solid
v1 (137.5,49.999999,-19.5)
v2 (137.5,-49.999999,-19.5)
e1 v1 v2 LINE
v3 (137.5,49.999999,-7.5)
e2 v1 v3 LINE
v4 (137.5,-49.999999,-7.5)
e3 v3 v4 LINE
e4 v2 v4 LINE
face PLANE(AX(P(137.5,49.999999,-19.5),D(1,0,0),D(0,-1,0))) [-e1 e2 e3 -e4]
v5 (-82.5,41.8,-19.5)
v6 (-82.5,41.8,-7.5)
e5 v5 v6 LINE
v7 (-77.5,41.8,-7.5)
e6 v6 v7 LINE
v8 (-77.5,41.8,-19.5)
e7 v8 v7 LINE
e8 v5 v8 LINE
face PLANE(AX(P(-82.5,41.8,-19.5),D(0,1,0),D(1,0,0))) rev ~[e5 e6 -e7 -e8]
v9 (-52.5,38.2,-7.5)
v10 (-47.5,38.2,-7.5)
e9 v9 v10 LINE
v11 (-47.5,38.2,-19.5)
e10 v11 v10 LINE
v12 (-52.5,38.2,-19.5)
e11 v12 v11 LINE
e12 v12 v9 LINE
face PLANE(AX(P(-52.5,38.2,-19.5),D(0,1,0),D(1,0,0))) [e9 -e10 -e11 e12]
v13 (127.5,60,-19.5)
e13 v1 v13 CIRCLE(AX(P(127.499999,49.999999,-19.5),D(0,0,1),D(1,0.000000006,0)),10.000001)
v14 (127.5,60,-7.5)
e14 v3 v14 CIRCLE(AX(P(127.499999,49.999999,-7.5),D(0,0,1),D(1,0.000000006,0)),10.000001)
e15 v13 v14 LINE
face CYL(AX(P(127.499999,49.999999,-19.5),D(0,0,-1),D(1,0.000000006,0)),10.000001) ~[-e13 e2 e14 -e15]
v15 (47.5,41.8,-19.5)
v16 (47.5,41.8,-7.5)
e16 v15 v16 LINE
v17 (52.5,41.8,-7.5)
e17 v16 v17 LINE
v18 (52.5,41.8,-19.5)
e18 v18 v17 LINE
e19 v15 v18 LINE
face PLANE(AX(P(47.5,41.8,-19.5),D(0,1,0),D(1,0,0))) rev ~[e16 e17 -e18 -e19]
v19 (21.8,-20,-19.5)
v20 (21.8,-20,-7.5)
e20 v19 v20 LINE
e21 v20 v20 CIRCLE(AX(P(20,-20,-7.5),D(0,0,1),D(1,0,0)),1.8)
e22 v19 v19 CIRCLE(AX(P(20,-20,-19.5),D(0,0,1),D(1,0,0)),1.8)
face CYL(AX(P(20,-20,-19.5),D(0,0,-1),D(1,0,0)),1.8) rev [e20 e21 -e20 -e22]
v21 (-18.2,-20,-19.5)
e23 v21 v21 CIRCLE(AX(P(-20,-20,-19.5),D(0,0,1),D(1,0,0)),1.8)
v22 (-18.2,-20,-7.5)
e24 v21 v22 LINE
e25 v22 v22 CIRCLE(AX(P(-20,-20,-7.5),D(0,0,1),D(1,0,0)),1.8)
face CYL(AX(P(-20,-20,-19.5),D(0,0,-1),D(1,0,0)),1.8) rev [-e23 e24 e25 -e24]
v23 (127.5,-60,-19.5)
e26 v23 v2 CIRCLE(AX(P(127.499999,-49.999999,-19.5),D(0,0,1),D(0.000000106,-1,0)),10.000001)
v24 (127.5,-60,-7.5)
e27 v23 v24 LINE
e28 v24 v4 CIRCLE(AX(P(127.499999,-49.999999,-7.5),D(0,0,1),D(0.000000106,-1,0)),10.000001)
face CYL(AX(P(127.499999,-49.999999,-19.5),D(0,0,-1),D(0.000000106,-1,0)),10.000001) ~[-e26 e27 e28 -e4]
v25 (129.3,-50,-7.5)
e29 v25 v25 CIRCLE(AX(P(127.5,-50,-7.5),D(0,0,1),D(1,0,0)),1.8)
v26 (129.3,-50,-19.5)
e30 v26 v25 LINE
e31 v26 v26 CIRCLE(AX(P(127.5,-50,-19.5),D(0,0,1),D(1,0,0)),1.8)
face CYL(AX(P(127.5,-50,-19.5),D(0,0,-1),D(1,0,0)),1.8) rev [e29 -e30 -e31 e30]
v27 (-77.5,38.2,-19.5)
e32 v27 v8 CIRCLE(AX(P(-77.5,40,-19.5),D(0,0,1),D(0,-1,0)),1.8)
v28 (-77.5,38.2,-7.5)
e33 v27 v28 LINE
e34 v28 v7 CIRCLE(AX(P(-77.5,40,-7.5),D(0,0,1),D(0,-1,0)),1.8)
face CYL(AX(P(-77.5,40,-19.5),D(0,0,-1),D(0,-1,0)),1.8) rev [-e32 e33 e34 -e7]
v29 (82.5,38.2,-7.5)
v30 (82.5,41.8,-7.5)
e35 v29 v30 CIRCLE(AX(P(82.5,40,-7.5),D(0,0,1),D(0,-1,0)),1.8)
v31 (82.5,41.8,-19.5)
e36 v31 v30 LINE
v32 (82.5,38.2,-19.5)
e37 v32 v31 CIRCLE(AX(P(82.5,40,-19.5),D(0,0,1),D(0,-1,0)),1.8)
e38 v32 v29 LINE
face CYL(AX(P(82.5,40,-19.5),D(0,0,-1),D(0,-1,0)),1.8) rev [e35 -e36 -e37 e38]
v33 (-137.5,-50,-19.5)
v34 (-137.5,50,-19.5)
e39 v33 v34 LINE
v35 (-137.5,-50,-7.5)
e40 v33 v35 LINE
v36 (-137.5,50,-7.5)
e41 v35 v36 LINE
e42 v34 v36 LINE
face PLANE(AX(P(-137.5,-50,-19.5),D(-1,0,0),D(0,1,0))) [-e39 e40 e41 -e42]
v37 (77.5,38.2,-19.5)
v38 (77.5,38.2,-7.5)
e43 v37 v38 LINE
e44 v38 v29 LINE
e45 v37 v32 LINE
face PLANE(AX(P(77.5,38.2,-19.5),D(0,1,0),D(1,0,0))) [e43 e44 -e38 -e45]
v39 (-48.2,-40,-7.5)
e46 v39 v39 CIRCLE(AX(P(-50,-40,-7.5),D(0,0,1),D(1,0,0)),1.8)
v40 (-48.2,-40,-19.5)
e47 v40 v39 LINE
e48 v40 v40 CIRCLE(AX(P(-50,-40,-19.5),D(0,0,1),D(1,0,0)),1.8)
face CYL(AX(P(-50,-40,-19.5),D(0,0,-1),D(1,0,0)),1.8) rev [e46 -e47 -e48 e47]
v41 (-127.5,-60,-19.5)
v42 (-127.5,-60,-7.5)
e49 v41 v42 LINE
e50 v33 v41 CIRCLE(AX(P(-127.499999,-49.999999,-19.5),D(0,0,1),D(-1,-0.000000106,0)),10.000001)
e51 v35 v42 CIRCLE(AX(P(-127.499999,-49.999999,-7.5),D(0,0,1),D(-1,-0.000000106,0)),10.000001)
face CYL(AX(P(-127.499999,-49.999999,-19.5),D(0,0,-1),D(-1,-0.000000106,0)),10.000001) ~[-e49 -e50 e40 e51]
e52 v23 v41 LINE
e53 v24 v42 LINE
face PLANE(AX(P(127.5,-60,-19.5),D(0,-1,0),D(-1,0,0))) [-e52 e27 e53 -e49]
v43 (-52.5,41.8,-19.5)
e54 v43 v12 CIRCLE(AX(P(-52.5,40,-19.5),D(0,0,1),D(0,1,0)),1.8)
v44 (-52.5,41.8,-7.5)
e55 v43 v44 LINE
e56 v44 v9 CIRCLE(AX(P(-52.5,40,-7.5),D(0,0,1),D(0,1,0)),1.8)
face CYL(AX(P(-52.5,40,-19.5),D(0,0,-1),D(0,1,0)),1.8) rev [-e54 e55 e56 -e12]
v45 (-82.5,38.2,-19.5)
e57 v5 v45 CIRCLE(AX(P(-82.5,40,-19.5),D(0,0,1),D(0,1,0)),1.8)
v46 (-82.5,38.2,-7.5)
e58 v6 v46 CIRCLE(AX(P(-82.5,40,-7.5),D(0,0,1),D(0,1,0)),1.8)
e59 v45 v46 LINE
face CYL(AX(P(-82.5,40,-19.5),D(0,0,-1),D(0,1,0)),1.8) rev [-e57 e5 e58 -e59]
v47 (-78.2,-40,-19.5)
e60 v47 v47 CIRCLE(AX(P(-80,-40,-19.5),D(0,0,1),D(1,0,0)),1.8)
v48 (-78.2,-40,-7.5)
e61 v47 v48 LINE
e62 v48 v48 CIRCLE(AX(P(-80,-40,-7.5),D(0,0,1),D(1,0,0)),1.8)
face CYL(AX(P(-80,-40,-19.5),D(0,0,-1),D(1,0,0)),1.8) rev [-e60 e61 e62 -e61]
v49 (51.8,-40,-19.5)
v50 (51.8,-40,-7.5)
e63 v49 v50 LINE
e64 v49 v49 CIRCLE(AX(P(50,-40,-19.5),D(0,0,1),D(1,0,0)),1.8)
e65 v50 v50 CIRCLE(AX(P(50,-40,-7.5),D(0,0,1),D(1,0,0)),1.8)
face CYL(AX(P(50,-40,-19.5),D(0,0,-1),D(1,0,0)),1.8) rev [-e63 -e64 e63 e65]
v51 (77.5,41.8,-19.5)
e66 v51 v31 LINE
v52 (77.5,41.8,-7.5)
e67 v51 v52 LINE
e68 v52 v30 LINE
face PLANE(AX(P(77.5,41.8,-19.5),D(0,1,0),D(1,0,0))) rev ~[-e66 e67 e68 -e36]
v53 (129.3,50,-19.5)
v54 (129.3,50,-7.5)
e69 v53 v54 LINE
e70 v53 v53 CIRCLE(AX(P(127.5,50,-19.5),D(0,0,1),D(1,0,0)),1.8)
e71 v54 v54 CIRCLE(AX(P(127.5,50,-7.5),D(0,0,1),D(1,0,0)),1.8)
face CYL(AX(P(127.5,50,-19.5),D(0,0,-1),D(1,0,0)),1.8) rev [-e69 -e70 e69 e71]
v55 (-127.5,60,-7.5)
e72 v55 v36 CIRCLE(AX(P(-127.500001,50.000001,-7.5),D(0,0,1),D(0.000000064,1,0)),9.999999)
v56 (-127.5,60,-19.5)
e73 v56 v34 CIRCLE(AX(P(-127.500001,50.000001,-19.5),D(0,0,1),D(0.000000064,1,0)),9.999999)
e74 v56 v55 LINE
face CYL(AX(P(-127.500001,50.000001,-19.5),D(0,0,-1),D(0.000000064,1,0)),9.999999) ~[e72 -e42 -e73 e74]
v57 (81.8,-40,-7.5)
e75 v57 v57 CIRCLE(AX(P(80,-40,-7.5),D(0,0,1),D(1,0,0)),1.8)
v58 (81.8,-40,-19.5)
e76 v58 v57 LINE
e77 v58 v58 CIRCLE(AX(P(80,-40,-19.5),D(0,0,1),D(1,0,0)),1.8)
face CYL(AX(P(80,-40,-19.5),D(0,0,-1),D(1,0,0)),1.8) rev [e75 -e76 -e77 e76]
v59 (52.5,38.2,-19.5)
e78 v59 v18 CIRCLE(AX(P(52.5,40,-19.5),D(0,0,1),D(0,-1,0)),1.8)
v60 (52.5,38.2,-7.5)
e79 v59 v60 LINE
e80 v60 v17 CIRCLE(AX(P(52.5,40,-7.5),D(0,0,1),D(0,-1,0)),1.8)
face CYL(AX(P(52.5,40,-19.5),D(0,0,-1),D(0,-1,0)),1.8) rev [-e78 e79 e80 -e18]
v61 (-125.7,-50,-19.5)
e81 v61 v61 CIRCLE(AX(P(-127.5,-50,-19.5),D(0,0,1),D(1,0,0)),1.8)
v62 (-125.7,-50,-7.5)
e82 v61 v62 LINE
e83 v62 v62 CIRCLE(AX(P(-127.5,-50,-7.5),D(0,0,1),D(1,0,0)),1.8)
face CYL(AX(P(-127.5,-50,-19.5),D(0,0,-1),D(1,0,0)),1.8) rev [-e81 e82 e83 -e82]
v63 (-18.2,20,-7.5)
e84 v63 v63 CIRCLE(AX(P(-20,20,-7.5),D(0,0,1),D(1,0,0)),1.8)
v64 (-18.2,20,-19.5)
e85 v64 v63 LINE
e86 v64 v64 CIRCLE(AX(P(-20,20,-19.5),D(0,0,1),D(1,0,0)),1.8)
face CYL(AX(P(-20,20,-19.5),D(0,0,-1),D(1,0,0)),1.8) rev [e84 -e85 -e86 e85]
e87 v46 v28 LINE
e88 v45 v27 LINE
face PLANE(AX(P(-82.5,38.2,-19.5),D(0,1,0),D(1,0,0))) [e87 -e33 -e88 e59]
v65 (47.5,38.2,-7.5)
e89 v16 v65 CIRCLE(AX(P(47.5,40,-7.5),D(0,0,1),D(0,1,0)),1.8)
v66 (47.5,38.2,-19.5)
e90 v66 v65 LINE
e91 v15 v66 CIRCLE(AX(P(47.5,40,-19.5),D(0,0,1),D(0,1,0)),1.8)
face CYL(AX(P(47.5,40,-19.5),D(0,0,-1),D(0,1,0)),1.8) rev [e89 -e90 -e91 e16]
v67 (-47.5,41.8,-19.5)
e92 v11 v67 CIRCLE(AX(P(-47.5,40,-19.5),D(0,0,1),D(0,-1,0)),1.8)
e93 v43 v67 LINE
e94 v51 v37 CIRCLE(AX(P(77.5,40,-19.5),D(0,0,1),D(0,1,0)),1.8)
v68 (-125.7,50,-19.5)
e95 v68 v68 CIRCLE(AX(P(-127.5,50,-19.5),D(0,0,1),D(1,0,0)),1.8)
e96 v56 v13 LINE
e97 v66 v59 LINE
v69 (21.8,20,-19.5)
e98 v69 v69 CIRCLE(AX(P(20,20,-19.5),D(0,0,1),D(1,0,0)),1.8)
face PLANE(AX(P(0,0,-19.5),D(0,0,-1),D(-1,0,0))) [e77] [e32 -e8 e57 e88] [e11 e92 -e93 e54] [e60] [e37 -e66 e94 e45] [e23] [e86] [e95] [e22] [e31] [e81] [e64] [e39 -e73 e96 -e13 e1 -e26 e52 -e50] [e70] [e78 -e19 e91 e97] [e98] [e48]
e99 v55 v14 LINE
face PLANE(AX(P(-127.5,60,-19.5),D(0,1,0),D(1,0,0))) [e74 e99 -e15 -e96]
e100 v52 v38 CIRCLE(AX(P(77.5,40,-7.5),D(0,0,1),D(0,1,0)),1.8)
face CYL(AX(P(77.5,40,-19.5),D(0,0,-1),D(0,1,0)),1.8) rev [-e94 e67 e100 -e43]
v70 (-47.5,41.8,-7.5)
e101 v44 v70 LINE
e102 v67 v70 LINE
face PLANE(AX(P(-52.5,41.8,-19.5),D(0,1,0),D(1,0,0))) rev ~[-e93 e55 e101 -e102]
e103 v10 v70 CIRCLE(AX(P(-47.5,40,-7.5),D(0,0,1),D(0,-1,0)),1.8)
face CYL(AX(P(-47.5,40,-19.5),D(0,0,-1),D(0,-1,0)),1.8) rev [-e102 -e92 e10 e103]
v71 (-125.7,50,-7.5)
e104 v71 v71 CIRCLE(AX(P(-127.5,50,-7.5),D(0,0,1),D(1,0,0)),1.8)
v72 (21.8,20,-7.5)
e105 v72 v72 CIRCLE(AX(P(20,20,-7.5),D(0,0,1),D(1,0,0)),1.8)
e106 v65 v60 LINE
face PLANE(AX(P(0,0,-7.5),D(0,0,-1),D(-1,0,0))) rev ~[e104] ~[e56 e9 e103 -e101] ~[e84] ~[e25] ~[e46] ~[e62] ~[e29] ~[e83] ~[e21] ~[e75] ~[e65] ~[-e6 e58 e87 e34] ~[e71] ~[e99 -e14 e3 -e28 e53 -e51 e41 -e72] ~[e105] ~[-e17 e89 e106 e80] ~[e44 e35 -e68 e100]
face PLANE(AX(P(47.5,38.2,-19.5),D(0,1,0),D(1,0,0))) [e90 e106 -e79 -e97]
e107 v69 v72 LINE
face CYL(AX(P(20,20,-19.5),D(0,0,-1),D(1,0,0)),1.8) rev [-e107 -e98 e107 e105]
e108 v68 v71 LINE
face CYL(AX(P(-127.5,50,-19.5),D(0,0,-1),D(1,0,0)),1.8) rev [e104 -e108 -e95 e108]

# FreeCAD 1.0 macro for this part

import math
import FreeCAD as App
import Part
import Sketcher

V = App.Vector
Q = App.Units.Quantity

doc = App.newDocument("Part")
body = doc.addObject("PartDesign::Body", "Body")

# Sketch on XY plane
sketch1 = body.newObject("Sketcher::SketchObject", "Sketch")
sketch1.AttachmentSupport = (doc.getObject("XY_Plane"), [""])
sketch1.MapMode = "FlatFace"
sketch1.AttachmentOffset = App.Placement(V(0, 0, -19.5), App.Rotation())
sketch1.addGeometry([
    Part.LineSegment(V(127.5, 60, 0), V(-127.5, 60, 0)),  # 0
    Part.ArcOfCircle(Part.Circle(V(-127.5, 50, 0), V(0, 0, 1), 10), math.radians(90), math.radians(180)),  # 1
    Part.LineSegment(V(-137.5, 50, 0), V(-137.5, -50, 0)),  # 2
    Part.ArcOfCircle(Part.Circle(V(-127.5, -50, 0), V(0, 0, 1), 10), math.radians(-180), math.radians(-90)),  # 3
    Part.LineSegment(V(-127.5, -60, 0), V(127.5, -60, 0)),  # 4
    Part.ArcOfCircle(Part.Circle(V(127.5, -50, 0), V(0, 0, 1), 10), math.radians(-90), math.radians(0)),  # 5
    Part.LineSegment(V(137.5, -50, 0), V(137.5, 50, 0)),  # 6
    Part.ArcOfCircle(Part.Circle(V(127.5, 50, 0), V(0, 0, 1), 10), math.radians(0), math.radians(90)),  # 7
    Part.Circle(V(127.5, -50, 0), V(0, 0, 1), 1.8),  # 8
    Part.Circle(V(80, -40, 0), V(0, 0, 1), 1.8),  # 9
    Part.Circle(V(50, -40, 0), V(0, 0, 1), 1.8),  # 10
    Part.Circle(V(20, -20, 0), V(0, 0, 1), 1.8),  # 11
    Part.Circle(V(-50, -40, 0), V(0, 0, 1), 1.8),  # 12
    Part.Circle(V(-80, -40, 0), V(0, 0, 1), 1.8),  # 13
    Part.Circle(V(-127.5, -50, 0), V(0, 0, 1), 1.8),  # 14
    Part.Circle(V(-20, -20, 0), V(0, 0, 1), 1.8),  # 15
    Part.Circle(V(20, 20, 0), V(0, 0, 1), 1.8),  # 16
    Part.Circle(V(127.5, 50, 0), V(0, 0, 1), 1.8),  # 17
    Part.LineSegment(V(77.5, 41.8, 0), V(82.5, 41.8, 0)),  # 18
    Part.ArcOfCircle(Part.Circle(V(82.5, 40, 0), V(0, 0, 1), 1.8), math.radians(-90), math.radians(90)),  # 19
    Part.LineSegment(V(82.5, 38.2, 0), V(77.5, 38.2, 0)),  # 20
    Part.ArcOfCircle(Part.Circle(V(77.5, 40, 0), V(0, 0, 1), 1.8), math.radians(90), math.radians(270)),  # 21
    Part.LineSegment(V(47.5, 41.8, 0), V(52.5, 41.8, 0)),  # 22
    Part.ArcOfCircle(Part.Circle(V(52.5, 40, 0), V(0, 0, 1), 1.8), math.radians(-90), math.radians(90)),  # 23
    Part.LineSegment(V(52.5, 38.2, 0), V(47.5, 38.2, 0)),  # 24
    Part.ArcOfCircle(Part.Circle(V(47.5, 40, 0), V(0, 0, 1), 1.8), math.radians(90), math.radians(270)),  # 25
    Part.Circle(V(-20, 20, 0), V(0, 0, 1), 1.8),  # 26
    Part.LineSegment(V(-52.5, 41.8, 0), V(-47.5, 41.8, 0)),  # 27
    Part.ArcOfCircle(Part.Circle(V(-47.5, 40, 0), V(0, 0, 1), 1.8), math.radians(-90), math.radians(90)),  # 28
    Part.LineSegment(V(-47.5, 38.2, 0), V(-52.5, 38.2, 0)),  # 29
    Part.ArcOfCircle(Part.Circle(V(-52.5, 40, 0), V(0, 0, 1), 1.8), math.radians(90), math.radians(270)),  # 30
    Part.LineSegment(V(-82.5, 41.8, 0), V(-77.5, 41.8, 0)),  # 31
    Part.ArcOfCircle(Part.Circle(V(-77.5, 40, 0), V(0, 0, 1), 1.8), math.radians(-90), math.radians(90)),  # 32
    Part.LineSegment(V(-77.5, 38.2, 0), V(-82.5, 38.2, 0)),  # 33
    Part.ArcOfCircle(Part.Circle(V(-82.5, 40, 0), V(0, 0, 1), 1.8), math.radians(90), math.radians(270)),  # 34
    Part.Circle(V(-127.5, 50, 0), V(0, 0, 1), 1.8),  # 35
], False)
sketch1.addConstraint([
    Sketcher.Constraint("Tangent", 0, 2, 1, 1),
    Sketcher.Constraint("Tangent", 1, 2, 2, 1),
    Sketcher.Constraint("Tangent", 2, 2, 3, 1),
    Sketcher.Constraint("Tangent", 3, 2, 4, 1),
    Sketcher.Constraint("Tangent", 4, 2, 5, 1),
    Sketcher.Constraint("Tangent", 5, 2, 6, 1),
    Sketcher.Constraint("Tangent", 6, 2, 7, 1),
    Sketcher.Constraint("Tangent", 7, 2, 0, 1),
    Sketcher.Constraint("Tangent", 18, 2, 19, 2),
    Sketcher.Constraint("Tangent", 19, 1, 20, 1),
    Sketcher.Constraint("Tangent", 20, 2, 21, 2),
    Sketcher.Constraint("Tangent", 21, 1, 18, 1),
    Sketcher.Constraint("Tangent", 22, 2, 23, 2),
    Sketcher.Constraint("Tangent", 23, 1, 24, 1),
    Sketcher.Constraint("Tangent", 24, 2, 25, 2),
    Sketcher.Constraint("Tangent", 25, 1, 22, 1),
    Sketcher.Constraint("Tangent", 27, 2, 28, 2),
    Sketcher.Constraint("Tangent", 28, 1, 29, 1),
    Sketcher.Constraint("Tangent", 29, 2, 30, 2),
    Sketcher.Constraint("Tangent", 30, 1, 27, 1),
    Sketcher.Constraint("Tangent", 31, 2, 32, 2),
    Sketcher.Constraint("Tangent", 32, 1, 33, 1),
    Sketcher.Constraint("Tangent", 33, 2, 34, 2),
    Sketcher.Constraint("Tangent", 34, 1, 31, 1),
    Sketcher.Constraint("Horizontal", 0),
    Sketcher.Constraint("Vertical", 2),
    Sketcher.Constraint("Horizontal", 4),
    Sketcher.Constraint("Vertical", 6),
    Sketcher.Constraint("Horizontal", 18),
    Sketcher.Constraint("Horizontal", 20),
    Sketcher.Constraint("Horizontal", 22),
    Sketcher.Constraint("Horizontal", 24),
    Sketcher.Constraint("Horizontal", 27),
    Sketcher.Constraint("Horizontal", 29),
    Sketcher.Constraint("Horizontal", 31),
    Sketcher.Constraint("Horizontal", 33),
    Sketcher.Constraint("Coincident", 8, 3, 5, 3),
    Sketcher.Constraint("Coincident", 14, 3, 3, 3),
    Sketcher.Constraint("Coincident", 17, 3, 7, 3),
    Sketcher.Constraint("Coincident", 35, 3, 1, 3),
    Sketcher.Constraint("Equal", 1, 3),
    Sketcher.Constraint("Equal", 3, 5),
    Sketcher.Constraint("Equal", 5, 7),
    Sketcher.Constraint("Equal", 8, 9),
    Sketcher.Constraint("Equal", 9, 10),
    Sketcher.Constraint("Equal", 10, 11),
    Sketcher.Constraint("Equal", 11, 12),
    Sketcher.Constraint("Equal", 12, 13),
    Sketcher.Constraint("Equal", 13, 14),
    Sketcher.Constraint("Equal", 14, 15),
    Sketcher.Constraint("Equal", 15, 16),
    Sketcher.Constraint("Equal", 16, 17),
    Sketcher.Constraint("Equal", 17, 19),
    Sketcher.Constraint("Equal", 21, 23),
    Sketcher.Constraint("Equal", 25, 26),
    Sketcher.Constraint("Equal", 26, 28),
    Sketcher.Constraint("Equal", 30, 32),
    Sketcher.Constraint("Equal", 34, 35),
    Sketcher.Constraint("Symmetric", 1, 3, 5, 3, -1, 1),
    Sketcher.Constraint("Symmetric", 15, 3, 16, 3, -1, 1),
    Sketcher.Constraint("Symmetric", 11, 3, 26, 3, -1, 1),
    Sketcher.Constraint("Symmetric", 10, 3, 12, 3, -2),
    Sketcher.Constraint("Symmetric", 9, 3, 13, 3, -2),
    Sketcher.Constraint("Symmetric", 11, 3, 15, 3, -2),
    Sketcher.Constraint("Symmetric", 25, 3, 28, 3, -2),
    Sketcher.Constraint("Symmetric", 21, 3, 32, 3, -2),
    Sketcher.Constraint("Horizontal", 9, 3, 10, 3),
    Sketcher.Constraint("Horizontal", 21, 3, 23, 3),
    Sketcher.Constraint("Equal", 20, 22),
    Sketcher.Constraint("Equal", 24, 27),
    Sketcher.Constraint("Equal", 29, 31),
    Sketcher.Constraint("Radius", 1, Q("9.999999 mm")),
    Sketcher.Constraint("Diameter", 8, Q("3.6 mm")),
    Sketcher.Constraint("DistanceX", 0, 2, 0, 1, Q("255 mm")),
    Sketcher.Constraint("DistanceX", 18, 1, 18, 2, Q("5 mm")),
    Sketcher.Constraint("DistanceY", 2, 2, 2, 1, Q("100 mm")),
    Sketcher.Constraint("DistanceX", -1, 1, 9, 3, Q("80 mm")),
    Sketcher.Constraint("DistanceY", 9, 3, -1, 1, Q("40 mm")),
    Sketcher.Constraint("DistanceX", -1, 1, 10, 3, Q("50 mm")),
    Sketcher.Constraint("DistanceX", -1, 1, 11, 3, Q("20 mm")),
    Sketcher.Constraint("DistanceY", 11, 3, -1, 1, Q("20 mm")),
    Sketcher.Constraint("DistanceY", -1, 1, 19, 3, Q("40 mm")),
    Sketcher.Constraint("DistanceX", 19, 3, 7, 3, Q("44.999999 mm")),
    Sketcher.Constraint("DistanceX", 23, 3, 21, 3, Q("25 mm")),
])
pad1 = body.newObject("PartDesign::Pad", "Pad")
pad1.Profile = sketch1
pad1.Length = 12

doc.recompute()
